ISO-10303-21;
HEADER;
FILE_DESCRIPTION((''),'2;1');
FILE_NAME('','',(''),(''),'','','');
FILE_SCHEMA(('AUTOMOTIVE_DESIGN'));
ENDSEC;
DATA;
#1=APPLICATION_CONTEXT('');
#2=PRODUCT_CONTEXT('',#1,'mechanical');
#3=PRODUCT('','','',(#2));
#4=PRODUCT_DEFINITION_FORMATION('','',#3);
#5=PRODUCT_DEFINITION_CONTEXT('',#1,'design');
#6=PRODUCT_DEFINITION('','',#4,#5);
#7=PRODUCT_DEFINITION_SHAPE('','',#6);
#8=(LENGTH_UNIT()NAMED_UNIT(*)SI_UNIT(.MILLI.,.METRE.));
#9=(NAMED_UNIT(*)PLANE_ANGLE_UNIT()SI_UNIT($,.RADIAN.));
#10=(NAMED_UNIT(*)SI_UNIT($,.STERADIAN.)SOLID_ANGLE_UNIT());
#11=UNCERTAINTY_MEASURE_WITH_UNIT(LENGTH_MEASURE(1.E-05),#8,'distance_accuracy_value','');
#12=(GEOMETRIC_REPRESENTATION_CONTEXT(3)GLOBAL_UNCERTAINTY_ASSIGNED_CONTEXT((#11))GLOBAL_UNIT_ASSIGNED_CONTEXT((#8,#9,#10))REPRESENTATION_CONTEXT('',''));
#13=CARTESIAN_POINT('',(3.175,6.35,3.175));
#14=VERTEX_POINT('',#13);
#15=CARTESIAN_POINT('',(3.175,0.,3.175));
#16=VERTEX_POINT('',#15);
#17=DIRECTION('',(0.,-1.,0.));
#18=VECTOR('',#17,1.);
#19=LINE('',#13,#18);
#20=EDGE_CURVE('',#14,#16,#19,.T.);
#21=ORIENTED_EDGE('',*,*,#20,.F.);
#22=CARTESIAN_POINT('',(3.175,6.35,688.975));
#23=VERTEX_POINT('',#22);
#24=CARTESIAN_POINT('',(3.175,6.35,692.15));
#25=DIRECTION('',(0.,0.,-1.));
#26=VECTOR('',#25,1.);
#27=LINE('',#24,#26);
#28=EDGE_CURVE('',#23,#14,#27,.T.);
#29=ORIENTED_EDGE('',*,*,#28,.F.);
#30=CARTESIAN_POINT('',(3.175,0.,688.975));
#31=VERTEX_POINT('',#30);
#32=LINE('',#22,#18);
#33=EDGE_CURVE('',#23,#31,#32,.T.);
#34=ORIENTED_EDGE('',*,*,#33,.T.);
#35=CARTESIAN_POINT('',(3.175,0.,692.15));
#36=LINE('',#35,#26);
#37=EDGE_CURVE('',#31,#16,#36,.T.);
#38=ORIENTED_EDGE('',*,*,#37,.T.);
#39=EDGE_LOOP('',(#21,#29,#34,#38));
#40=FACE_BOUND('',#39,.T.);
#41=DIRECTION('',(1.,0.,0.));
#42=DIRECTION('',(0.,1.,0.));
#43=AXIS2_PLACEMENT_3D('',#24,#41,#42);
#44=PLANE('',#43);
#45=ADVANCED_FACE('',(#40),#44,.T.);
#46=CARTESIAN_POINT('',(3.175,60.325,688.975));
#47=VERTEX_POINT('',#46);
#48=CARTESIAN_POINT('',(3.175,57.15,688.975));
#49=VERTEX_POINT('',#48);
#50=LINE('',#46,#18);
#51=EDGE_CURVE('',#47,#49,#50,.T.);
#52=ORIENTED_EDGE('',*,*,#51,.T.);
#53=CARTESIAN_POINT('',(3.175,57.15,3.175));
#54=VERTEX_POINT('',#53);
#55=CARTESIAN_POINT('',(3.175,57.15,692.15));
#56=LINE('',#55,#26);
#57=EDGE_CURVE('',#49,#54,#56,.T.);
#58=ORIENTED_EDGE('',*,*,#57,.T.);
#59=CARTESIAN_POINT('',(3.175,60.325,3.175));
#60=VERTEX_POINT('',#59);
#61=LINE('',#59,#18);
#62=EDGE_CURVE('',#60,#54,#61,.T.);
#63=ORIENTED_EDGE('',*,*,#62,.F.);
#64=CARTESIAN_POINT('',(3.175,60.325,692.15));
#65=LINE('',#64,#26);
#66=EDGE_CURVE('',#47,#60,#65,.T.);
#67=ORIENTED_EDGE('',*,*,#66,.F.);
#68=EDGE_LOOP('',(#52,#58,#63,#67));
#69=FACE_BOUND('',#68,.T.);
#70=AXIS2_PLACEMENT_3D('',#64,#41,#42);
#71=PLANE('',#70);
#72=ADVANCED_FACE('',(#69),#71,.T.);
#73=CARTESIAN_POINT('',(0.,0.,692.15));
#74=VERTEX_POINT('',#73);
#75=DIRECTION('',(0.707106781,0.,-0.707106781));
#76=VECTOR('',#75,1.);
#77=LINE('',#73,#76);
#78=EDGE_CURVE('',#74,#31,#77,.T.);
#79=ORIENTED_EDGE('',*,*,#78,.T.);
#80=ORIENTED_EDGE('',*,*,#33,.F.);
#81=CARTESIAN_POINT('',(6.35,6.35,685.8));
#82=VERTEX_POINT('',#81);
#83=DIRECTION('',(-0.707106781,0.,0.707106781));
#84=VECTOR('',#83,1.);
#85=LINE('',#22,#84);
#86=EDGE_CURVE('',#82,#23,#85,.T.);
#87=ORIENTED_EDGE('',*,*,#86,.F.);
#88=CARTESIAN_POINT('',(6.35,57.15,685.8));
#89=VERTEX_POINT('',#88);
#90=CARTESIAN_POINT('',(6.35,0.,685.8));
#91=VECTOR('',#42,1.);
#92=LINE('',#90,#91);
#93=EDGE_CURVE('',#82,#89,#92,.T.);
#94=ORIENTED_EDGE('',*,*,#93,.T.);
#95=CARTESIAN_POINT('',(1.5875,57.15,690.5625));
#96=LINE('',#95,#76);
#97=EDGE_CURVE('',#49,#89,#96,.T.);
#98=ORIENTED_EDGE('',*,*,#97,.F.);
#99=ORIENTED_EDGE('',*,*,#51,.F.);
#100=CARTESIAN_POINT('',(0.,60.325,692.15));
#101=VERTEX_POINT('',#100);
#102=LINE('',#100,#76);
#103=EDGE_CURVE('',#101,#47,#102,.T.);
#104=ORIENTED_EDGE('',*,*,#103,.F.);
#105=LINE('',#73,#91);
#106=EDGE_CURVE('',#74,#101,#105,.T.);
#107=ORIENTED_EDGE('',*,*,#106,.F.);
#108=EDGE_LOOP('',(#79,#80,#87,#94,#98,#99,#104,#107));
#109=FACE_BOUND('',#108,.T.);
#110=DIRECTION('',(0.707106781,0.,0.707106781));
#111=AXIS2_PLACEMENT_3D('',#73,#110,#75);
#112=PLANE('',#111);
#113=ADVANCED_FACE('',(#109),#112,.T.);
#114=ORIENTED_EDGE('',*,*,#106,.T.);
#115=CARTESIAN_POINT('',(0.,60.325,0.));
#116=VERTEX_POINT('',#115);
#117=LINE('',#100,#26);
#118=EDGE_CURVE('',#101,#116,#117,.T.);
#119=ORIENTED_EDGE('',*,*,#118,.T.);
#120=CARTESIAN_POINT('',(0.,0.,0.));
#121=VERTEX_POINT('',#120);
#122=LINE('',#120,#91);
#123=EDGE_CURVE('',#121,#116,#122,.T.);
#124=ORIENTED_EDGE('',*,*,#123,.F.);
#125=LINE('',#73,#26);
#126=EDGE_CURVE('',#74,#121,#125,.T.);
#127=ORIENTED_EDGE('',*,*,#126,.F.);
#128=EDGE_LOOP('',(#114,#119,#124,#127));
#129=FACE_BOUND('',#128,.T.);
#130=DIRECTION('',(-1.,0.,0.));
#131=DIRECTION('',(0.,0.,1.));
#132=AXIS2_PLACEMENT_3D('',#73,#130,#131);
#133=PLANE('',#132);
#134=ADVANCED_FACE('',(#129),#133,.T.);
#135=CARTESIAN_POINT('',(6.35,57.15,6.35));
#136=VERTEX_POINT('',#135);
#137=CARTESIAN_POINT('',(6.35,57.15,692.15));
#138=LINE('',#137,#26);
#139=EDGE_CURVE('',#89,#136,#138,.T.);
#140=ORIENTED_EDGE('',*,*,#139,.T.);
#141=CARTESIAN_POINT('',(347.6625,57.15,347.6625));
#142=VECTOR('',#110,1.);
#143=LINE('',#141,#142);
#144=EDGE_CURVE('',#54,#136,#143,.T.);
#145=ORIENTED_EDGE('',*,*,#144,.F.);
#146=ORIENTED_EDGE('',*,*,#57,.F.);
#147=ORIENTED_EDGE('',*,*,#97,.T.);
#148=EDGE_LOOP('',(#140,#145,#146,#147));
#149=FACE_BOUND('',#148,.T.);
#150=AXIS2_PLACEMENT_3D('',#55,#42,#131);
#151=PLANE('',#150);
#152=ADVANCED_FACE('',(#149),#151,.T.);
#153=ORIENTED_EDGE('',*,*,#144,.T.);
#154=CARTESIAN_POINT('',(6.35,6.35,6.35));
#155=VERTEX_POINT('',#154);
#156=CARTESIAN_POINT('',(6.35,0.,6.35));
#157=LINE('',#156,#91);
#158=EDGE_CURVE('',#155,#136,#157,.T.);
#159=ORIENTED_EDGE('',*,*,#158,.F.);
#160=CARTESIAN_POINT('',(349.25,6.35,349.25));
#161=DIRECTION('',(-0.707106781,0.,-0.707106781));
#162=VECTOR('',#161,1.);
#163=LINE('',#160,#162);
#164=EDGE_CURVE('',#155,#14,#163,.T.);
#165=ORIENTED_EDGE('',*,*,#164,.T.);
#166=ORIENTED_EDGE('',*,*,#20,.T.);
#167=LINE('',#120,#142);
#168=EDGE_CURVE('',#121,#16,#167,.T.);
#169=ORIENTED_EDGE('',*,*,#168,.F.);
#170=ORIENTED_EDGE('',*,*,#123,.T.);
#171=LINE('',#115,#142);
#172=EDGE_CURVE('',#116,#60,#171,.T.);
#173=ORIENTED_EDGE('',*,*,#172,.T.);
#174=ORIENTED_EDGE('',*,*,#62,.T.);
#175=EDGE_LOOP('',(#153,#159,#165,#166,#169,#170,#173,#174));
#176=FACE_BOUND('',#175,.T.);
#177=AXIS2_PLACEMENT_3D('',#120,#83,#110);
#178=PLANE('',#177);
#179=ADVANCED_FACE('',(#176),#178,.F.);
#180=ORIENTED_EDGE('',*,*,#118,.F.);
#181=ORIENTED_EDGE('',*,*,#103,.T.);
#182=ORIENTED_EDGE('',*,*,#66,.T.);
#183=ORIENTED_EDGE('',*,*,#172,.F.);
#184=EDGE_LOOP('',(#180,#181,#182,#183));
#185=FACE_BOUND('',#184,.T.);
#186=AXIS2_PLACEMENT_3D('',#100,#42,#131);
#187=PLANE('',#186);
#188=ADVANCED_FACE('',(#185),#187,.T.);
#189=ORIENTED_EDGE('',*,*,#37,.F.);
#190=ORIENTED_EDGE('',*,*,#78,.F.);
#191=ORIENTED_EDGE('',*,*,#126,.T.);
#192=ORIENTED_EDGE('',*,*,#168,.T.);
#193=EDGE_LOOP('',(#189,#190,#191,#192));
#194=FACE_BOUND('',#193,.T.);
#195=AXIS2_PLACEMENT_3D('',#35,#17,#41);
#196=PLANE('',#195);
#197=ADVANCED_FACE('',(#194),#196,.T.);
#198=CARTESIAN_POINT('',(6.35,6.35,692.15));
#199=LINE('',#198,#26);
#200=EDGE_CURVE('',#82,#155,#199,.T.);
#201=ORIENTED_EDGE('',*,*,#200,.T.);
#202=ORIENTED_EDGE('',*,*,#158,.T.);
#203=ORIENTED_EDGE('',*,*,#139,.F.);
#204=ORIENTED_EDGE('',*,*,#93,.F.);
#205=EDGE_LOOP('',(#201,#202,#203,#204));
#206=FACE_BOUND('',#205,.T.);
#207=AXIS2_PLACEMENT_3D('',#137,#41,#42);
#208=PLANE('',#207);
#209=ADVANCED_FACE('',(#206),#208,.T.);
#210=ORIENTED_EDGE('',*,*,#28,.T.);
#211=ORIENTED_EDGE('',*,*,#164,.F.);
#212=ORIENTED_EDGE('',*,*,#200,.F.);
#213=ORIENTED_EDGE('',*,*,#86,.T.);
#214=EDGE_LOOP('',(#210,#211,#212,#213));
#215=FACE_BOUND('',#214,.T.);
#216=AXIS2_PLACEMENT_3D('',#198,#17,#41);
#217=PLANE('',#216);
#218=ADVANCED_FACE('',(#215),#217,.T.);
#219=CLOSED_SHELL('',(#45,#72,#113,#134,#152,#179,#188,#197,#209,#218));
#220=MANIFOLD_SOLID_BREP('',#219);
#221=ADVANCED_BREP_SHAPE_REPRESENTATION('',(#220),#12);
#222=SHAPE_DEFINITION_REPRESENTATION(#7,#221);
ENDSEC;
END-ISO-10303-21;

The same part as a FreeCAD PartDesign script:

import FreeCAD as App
import Part
import Sketcher
Q = App.Units.Quantity


def add_polygon(sketch, points):
    """Adds a closed chain of lines whose ends are joined by coincident constraints."""
    first, n = sketch.GeometryCount, len(points)
    for a, b in zip(points, points[1:] + points[:1]):
        sketch.addGeometry(Part.LineSegment(App.Vector(*a, 0), App.Vector(*b, 0)), False)
    for i in range(n):
        sketch.addConstraint(Sketcher.Constraint("Coincident", first + i, 2, first + (i + 1) % n, 1))

doc = App.newDocument("Part")
params = doc.addObject("Spreadsheet::Sheet", "Params")
for row, (alias, value) in enumerate([
    ("sketch1_height", "2 in"),
    ("sketch1_height2", "0.25 in"),
    ("sketch1_width", "0.125 in"),
    ("pad1_length", "27.25 in"),
    ("sketch2_width", "0.25 in"),
], start=1):
    params.set(f"A{row}", alias)
    params.set(f"B{row}", "=" + value)
    params.setAlias(f"B{row}", alias)

body = doc.addObject("PartDesign::Body", "Body")

sketch1 = body.newObject("Sketcher::SketchObject", "Sketch")
sketch1.AttachmentSupport = (doc.getObject("XY_Plane"), [""])
sketch1.MapMode = "FlatFace"
add_polygon(sketch1, [(0, 60.325), (0, 0), (3.175, 0), (3.175, 6.35), (6.35, 6.35), (6.35, 57.15), (3.175, 57.15), (3.175, 60.325)])
sketch1.addConstraint([
    Sketcher.Constraint("Vertical", 0),
    Sketcher.Constraint("Horizontal", 1),
    Sketcher.Constraint("Vertical", 2),
    Sketcher.Constraint("Horizontal", 3),
    Sketcher.Constraint("Vertical", 4),
    Sketcher.Constraint("Horizontal", 5),
    Sketcher.Constraint("Vertical", 6),
    Sketcher.Constraint("Horizontal", 7),
    Sketcher.Constraint("Coincident", 0, 2, -1, 1),
    Sketcher.Constraint("Vertical", 2, 2, 5, 2),
    Sketcher.Constraint("Equal", 1, 3),
    Sketcher.Constraint("Equal", 7, 6),
    Sketcher.Constraint("DistanceY", 4, 1, 4, 2, Q("2 in")),
    Sketcher.Constraint("DistanceY", 2, 1, 2, 2, Q("0.25 in")),
    Sketcher.Constraint("DistanceX", 1, 1, 1, 2, Q("0.125 in")),
])
sketch1.setExpression("Constraints[20]", "Params.sketch1_height")
sketch1.setExpression("Constraints[21]", "Params.sketch1_height2")
sketch1.setExpression("Constraints[22]", "Params.sketch1_width")
pad1 = body.newObject("PartDesign::Pad", "Pad")
pad1.Profile = sketch1
pad1.setExpression("Length", "Params.pad1_length")

sketch2 = body.newObject("Sketcher::SketchObject", "Sketch001")
sketch2.AttachmentSupport = (doc.getObject("XZ_Plane"), [""])
sketch2.MapMode = "FlatFace"
sketch2.AttachmentOffset = App.Placement(App.Vector(0, 0, -2.375 * 25.4), App.Rotation())
add_polygon(sketch2, [(0, 0), (6.35, 6.35), (6.35, 0)])
sketch2.addConstraint([
    Sketcher.Constraint("Vertical", 1),
    Sketcher.Constraint("Horizontal", 2),
    Sketcher.Constraint("Coincident", 2, 2, -1, 1),
    Sketcher.Constraint("Equal", 2, 1),
    Sketcher.Constraint("DistanceX", 2, 2, 2, 1, Q("0.25 in")),
])
sketch2.setExpression("Constraints[7]", "Params.sketch2_width")
pocket1 = body.newObject("PartDesign::Pocket", "Pocket")
pocket1.Profile = sketch2
pocket1.Type = "ThroughAll"
pocket1.Reversed = True
doc.recompute()

datumplane = body.newObject("PartDesign::Plane", "DatumPlane")
datumplane.AttachmentSupport = (doc.getObject("XY_Plane"), [""])
datumplane.MapMode = "FlatFace"
datumplane.AttachmentOffset = App.Placement(App.Vector(0, 0, 13.625 * 25.4), App.Rotation())
mirrored = body.newObject("PartDesign::Mirrored", "Mirrored")
mirrored.Originals = [pocket1]
mirrored.MirrorPlane = (datumplane, [""])
body.Tip = mirrored

doc.recompute()
